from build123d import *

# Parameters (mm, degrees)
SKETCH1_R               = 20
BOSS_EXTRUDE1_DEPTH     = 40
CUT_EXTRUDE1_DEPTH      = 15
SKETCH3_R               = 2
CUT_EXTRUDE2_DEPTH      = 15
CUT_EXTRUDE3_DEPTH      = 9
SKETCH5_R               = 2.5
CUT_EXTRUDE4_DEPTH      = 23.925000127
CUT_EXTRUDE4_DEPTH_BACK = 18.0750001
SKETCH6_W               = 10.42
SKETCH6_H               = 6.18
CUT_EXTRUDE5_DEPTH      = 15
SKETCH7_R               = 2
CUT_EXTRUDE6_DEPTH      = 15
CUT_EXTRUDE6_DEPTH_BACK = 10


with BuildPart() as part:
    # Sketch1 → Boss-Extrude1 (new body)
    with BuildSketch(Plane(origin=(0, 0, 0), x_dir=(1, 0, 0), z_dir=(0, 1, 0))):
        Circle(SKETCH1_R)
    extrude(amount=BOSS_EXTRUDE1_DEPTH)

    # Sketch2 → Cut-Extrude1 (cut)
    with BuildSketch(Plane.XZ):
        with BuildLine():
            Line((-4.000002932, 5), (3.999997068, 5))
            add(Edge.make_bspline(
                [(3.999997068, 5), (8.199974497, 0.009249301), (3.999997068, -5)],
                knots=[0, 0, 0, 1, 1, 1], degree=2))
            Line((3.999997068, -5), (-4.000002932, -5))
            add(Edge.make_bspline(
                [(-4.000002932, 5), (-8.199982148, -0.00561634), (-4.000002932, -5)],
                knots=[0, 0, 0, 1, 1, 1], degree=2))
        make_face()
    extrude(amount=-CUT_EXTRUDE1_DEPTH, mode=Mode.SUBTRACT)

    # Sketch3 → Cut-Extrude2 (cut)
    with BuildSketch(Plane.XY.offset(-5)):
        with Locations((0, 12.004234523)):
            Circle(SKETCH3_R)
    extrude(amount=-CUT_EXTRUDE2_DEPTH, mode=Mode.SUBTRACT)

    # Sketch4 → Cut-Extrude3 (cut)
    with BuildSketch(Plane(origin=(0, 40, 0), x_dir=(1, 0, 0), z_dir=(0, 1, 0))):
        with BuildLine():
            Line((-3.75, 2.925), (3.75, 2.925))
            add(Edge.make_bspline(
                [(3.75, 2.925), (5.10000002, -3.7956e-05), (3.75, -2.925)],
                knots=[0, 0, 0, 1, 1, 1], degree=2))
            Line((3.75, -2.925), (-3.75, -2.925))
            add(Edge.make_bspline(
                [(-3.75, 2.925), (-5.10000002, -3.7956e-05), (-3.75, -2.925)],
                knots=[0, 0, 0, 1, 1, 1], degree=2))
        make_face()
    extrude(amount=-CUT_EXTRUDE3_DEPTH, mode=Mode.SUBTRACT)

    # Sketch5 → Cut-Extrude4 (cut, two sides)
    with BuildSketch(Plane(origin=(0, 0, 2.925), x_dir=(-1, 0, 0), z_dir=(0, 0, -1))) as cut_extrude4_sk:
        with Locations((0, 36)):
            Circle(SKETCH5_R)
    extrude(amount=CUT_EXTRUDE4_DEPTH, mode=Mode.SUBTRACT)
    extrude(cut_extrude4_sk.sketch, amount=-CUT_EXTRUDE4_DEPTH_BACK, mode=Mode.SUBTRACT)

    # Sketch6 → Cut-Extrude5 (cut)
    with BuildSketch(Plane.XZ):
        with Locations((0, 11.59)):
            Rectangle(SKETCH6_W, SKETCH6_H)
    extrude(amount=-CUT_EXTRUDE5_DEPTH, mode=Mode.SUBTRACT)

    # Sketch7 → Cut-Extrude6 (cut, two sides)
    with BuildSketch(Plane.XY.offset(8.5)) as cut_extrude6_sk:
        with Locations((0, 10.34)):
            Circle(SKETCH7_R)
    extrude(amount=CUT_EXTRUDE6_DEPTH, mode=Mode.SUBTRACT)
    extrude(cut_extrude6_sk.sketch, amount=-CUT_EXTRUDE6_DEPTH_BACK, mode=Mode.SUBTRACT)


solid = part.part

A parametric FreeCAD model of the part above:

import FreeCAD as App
import Part
import Sketcher

doc = App.newDocument("Part")
params = doc.addObject("Spreadsheet::Sheet", "Params")
for row, (alias, value) in enumerate([
    ("sketch1_diameter", "40 mm"),
    ("pad1_length", "40 mm"),
    ("pocket1_length", "15 mm"),
    ("sketch3_diameter", "4 mm"),
    ("pocket2_length", "15 mm"),
    ("pocket3_length", "9 mm"),
    ("sketch5_diameter", "5 mm"),
    ("sketch6_width", "10.42 mm"),
    ("sketch6_height", "6.18 mm"),
    ("pocket5_length", "15 mm"),
    ("sketch7_diameter", "4 mm"),
    ("pocket6_length", "15 mm"),
    ("pocket6_length2", "10 mm"),
], start=1):
    params.set(f"A{row}", alias)
    params.set(f"B{row}", "=" + value)
    params.setAlias(f"B{row}", alias)

body = doc.addObject("PartDesign::Body", "Body")

sketch1 = body.newObject("Sketcher::SketchObject", "Sketch")
sketch1.AttachmentSupport = (doc.getObject("XZ_Plane"), [""])
sketch1.MapMode = "FlatFace"
sketch1.addGeometry(Part.Circle(App.Vector(0, 0, 0), App.Vector(0, 0, 1), 20), False)
sketch1.addConstraint([
    Sketcher.Constraint("Coincident", 0, 3, -1, 1),
    Sketcher.Constraint("Diameter", 0, 40.0),
])
sketch1.setExpression("Constraints[1]", "Params.sketch1_diameter")
pad1 = body.newObject("PartDesign::Pad", "Pad")
pad1.Profile = sketch1
pad1.setExpression("Length", "Params.pad1_length")
pad1.Reversed = True

sketch2 = body.newObject("Sketcher::SketchObject", "Sketch001")
sketch2.AttachmentSupport = (doc.getObject("XZ_Plane"), [""])
sketch2.MapMode = "FlatFace"
sketch2.addGeometry([
    Part.LineSegment(App.Vector(3.999997, 5, 0), App.Vector(-4.000003, 5, 0)),
    Part.BSplineCurve([App.Vector(-4.000003, 5, 0), App.Vector(-8.199982, -0.005616, 0), App.Vector(-4.000003, -5, 0)], [3, 3], [0, 1], False, 2, [1, 1, 1], False),
    Part.LineSegment(App.Vector(-4.000003, -5, 0), App.Vector(3.999997, -5, 0)),
    Part.BSplineCurve([App.Vector(3.999997, 5, 0), App.Vector(8.199974, 0.009249, 0), App.Vector(3.999997, -5, 0)], [3, 3], [0, 1], False, 2, [1, 1, 1], False),
], False)
sketch2.addConstraint([
    Sketcher.Constraint("Block", 1),
    Sketcher.Constraint("Block", 3),
    Sketcher.Constraint("Coincident", 0, 2, 1, 1),
    Sketcher.Constraint("Coincident", 1, 2, 2, 1),
    Sketcher.Constraint("Coincident", 2, 2, 3, 2),
    Sketcher.Constraint("Coincident", 3, 1, 0, 1),
])
pocket1 = body.newObject("PartDesign::Pocket", "Pocket")
pocket1.Profile = sketch2
pocket1.setExpression("Length", "Params.pocket1_length")

sketch3 = body.newObject("Sketcher::SketchObject", "Sketch002")
sketch3.AttachmentSupport = (doc.getObject("XY_Plane"), [""])
sketch3.MapMode = "FlatFace"
sketch3.AttachmentOffset = App.Placement(App.Vector(0, 0, -5), App.Rotation())
sketch3.addGeometry(Part.Circle(App.Vector(0, 12, 0), App.Vector(0, 0, 1), 2), False)
sketch3.addConstraint([
    Sketcher.Constraint("PointOnObject", 0, 3, -2),
    Sketcher.Constraint("Diameter", 0, 4.0),
    Sketcher.Constraint("DistanceY", -1, 1, 0, 3, 12.004235),
])
sketch3.setExpression("Constraints[1]", "Params.sketch3_diameter")
pocket2 = body.newObject("PartDesign::Pocket", "Pocket001")
pocket2.Profile = sketch3
pocket2.setExpression("Length", "Params.pocket2_length")

sketch4 = body.newObject("Sketcher::SketchObject", "Sketch003")
sketch4.AttachmentSupport = (doc.getObject("XZ_Plane"), [""])
sketch4.MapMode = "FlatFace"
sketch4.AttachmentOffset = App.Placement(App.Vector(0, 0, -40), App.Rotation())
sketch4.addGeometry([
    Part.LineSegment(App.Vector(3.75, -2.925, 0), App.Vector(-3.75, -2.925, 0)),
    Part.BSplineCurve([App.Vector(-3.75, -2.925, 0), App.Vector(-5.1, 0.000038, 0), App.Vector(-3.75, 2.925, 0)], [3, 3], [0, 1], False, 2, [1, 1, 1], False),
    Part.LineSegment(App.Vector(-3.75, 2.925, 0), App.Vector(3.75, 2.925, 0)),
    Part.BSplineCurve([App.Vector(3.75, -2.925, 0), App.Vector(5.1, 0.000038, 0), App.Vector(3.75, 2.925, 0)], [3, 3], [0, 1], False, 2, [1, 1, 1], False),
], False)
sketch4.addConstraint([
    Sketcher.Constraint("Block", 1),
    Sketcher.Constraint("Block", 3),
    Sketcher.Constraint("Coincident", 0, 2, 1, 1),
    Sketcher.Constraint("Coincident", 1, 2, 2, 1),
    Sketcher.Constraint("Coincident", 2, 2, 3, 2),
    Sketcher.Constraint("Coincident", 3, 1, 0, 1),
])
pocket3 = body.newObject("PartDesign::Pocket", "Pocket002")
pocket3.Profile = sketch4
pocket3.setExpression("Length", "Params.pocket3_length")
pocket3.Reversed = True

sketch5 = body.newObject("Sketcher::SketchObject", "Sketch004")
sketch5.AttachmentSupport = (doc.getObject("XY_Plane"), [""])
sketch5.MapMode = "FlatFace"
sketch5.AttachmentOffset = App.Placement(App.Vector(0, 0, 2.925), App.Rotation())
sketch5.addGeometry(Part.Circle(App.Vector(0, 36, 0), App.Vector(0, 0, 1), 2.5), False)
sketch5.addConstraint([
    Sketcher.Constraint("PointOnObject", 0, 3, -2),
    Sketcher.Constraint("Diameter", 0, 5.0),
    Sketcher.Constraint("DistanceY", -1, 1, 0, 3, 36.0),
])
sketch5.setExpression("Constraints[1]", "Params.sketch5_diameter")
pocket4 = body.newObject("PartDesign::Pocket", "Pocket003")
pocket4.Profile = sketch5
pocket4.Type = "ThroughAll"
pocket4.Midplane = True

sketch6 = body.newObject("Sketcher::SketchObject", "Sketch005")
sketch6.AttachmentSupport = (doc.getObject("XZ_Plane"), [""])
sketch6.MapMode = "FlatFace"
sketch6.addGeometry([
    Part.LineSegment(App.Vector(-5, 15, 0), App.Vector(-5, 8, 0)),
    Part.LineSegment(App.Vector(-5, 8, 0), App.Vector(5, 8, 0)),
    Part.LineSegment(App.Vector(5, 8, 0), App.Vector(5, 15, 0)),
    Part.LineSegment(App.Vector(5, 15, 0), App.Vector(-5, 15, 0)),
], False)
sketch6.addConstraint([
    Sketcher.Constraint("Coincident", 0, 2, 1, 1),
    Sketcher.Constraint("Coincident", 1, 2, 2, 1),
    Sketcher.Constraint("Coincident", 2, 2, 3, 1),
    Sketcher.Constraint("Coincident", 3, 2, 0, 1),
    Sketcher.Constraint("Vertical", 0),
    Sketcher.Constraint("Horizontal", 1),
    Sketcher.Constraint("Vertical", 2),
    Sketcher.Constraint("Horizontal", 3),
    Sketcher.Constraint("DistanceX", 1, 1, 1, 2, 10.42),
    Sketcher.Constraint("DistanceY", 0, 2, 0, 1, 6.18),
    Sketcher.Constraint("DistanceY", -1, 1, 0, 2, 8.5),
    Sketcher.Constraint("DistanceX", 0, 2, -1, 1, 5.21),
])
sketch6.setExpression("Constraints[8]", "Params.sketch6_width")
sketch6.setExpression("Constraints[9]", "Params.sketch6_height")
pocket5 = body.newObject("PartDesign::Pocket", "Pocket004")
pocket5.Profile = sketch6
pocket5.setExpression("Length", "Params.pocket5_length")

sketch7 = body.newObject("Sketcher::SketchObject", "Sketch006")
sketch7.AttachmentSupport = (doc.getObject("XY_Plane"), [""])
sketch7.MapMode = "FlatFace"
sketch7.AttachmentOffset = App.Placement(App.Vector(0, 0, 8.5), App.Rotation())
sketch7.addGeometry(Part.Circle(App.Vector(0, 10.3, 0), App.Vector(0, 0, 1), 2), False)
sketch7.addConstraint([
    Sketcher.Constraint("PointOnObject", 0, 3, -2),
    Sketcher.Constraint("Diameter", 0, 4.0),
    Sketcher.Constraint("DistanceY", -1, 1, 0, 3, 10.34),
])
sketch7.setExpression("Constraints[1]", "Params.sketch7_diameter")
pocket6 = body.newObject("PartDesign::Pocket", "Pocket005")
pocket6.Profile = sketch7
pocket6.Type = "TwoLengths"
pocket6.setExpression("Length", "Params.pocket6_length")
pocket6.setExpression("Length2", "Params.pocket6_length2")
pocket6.Reversed = True

doc.recompute()
